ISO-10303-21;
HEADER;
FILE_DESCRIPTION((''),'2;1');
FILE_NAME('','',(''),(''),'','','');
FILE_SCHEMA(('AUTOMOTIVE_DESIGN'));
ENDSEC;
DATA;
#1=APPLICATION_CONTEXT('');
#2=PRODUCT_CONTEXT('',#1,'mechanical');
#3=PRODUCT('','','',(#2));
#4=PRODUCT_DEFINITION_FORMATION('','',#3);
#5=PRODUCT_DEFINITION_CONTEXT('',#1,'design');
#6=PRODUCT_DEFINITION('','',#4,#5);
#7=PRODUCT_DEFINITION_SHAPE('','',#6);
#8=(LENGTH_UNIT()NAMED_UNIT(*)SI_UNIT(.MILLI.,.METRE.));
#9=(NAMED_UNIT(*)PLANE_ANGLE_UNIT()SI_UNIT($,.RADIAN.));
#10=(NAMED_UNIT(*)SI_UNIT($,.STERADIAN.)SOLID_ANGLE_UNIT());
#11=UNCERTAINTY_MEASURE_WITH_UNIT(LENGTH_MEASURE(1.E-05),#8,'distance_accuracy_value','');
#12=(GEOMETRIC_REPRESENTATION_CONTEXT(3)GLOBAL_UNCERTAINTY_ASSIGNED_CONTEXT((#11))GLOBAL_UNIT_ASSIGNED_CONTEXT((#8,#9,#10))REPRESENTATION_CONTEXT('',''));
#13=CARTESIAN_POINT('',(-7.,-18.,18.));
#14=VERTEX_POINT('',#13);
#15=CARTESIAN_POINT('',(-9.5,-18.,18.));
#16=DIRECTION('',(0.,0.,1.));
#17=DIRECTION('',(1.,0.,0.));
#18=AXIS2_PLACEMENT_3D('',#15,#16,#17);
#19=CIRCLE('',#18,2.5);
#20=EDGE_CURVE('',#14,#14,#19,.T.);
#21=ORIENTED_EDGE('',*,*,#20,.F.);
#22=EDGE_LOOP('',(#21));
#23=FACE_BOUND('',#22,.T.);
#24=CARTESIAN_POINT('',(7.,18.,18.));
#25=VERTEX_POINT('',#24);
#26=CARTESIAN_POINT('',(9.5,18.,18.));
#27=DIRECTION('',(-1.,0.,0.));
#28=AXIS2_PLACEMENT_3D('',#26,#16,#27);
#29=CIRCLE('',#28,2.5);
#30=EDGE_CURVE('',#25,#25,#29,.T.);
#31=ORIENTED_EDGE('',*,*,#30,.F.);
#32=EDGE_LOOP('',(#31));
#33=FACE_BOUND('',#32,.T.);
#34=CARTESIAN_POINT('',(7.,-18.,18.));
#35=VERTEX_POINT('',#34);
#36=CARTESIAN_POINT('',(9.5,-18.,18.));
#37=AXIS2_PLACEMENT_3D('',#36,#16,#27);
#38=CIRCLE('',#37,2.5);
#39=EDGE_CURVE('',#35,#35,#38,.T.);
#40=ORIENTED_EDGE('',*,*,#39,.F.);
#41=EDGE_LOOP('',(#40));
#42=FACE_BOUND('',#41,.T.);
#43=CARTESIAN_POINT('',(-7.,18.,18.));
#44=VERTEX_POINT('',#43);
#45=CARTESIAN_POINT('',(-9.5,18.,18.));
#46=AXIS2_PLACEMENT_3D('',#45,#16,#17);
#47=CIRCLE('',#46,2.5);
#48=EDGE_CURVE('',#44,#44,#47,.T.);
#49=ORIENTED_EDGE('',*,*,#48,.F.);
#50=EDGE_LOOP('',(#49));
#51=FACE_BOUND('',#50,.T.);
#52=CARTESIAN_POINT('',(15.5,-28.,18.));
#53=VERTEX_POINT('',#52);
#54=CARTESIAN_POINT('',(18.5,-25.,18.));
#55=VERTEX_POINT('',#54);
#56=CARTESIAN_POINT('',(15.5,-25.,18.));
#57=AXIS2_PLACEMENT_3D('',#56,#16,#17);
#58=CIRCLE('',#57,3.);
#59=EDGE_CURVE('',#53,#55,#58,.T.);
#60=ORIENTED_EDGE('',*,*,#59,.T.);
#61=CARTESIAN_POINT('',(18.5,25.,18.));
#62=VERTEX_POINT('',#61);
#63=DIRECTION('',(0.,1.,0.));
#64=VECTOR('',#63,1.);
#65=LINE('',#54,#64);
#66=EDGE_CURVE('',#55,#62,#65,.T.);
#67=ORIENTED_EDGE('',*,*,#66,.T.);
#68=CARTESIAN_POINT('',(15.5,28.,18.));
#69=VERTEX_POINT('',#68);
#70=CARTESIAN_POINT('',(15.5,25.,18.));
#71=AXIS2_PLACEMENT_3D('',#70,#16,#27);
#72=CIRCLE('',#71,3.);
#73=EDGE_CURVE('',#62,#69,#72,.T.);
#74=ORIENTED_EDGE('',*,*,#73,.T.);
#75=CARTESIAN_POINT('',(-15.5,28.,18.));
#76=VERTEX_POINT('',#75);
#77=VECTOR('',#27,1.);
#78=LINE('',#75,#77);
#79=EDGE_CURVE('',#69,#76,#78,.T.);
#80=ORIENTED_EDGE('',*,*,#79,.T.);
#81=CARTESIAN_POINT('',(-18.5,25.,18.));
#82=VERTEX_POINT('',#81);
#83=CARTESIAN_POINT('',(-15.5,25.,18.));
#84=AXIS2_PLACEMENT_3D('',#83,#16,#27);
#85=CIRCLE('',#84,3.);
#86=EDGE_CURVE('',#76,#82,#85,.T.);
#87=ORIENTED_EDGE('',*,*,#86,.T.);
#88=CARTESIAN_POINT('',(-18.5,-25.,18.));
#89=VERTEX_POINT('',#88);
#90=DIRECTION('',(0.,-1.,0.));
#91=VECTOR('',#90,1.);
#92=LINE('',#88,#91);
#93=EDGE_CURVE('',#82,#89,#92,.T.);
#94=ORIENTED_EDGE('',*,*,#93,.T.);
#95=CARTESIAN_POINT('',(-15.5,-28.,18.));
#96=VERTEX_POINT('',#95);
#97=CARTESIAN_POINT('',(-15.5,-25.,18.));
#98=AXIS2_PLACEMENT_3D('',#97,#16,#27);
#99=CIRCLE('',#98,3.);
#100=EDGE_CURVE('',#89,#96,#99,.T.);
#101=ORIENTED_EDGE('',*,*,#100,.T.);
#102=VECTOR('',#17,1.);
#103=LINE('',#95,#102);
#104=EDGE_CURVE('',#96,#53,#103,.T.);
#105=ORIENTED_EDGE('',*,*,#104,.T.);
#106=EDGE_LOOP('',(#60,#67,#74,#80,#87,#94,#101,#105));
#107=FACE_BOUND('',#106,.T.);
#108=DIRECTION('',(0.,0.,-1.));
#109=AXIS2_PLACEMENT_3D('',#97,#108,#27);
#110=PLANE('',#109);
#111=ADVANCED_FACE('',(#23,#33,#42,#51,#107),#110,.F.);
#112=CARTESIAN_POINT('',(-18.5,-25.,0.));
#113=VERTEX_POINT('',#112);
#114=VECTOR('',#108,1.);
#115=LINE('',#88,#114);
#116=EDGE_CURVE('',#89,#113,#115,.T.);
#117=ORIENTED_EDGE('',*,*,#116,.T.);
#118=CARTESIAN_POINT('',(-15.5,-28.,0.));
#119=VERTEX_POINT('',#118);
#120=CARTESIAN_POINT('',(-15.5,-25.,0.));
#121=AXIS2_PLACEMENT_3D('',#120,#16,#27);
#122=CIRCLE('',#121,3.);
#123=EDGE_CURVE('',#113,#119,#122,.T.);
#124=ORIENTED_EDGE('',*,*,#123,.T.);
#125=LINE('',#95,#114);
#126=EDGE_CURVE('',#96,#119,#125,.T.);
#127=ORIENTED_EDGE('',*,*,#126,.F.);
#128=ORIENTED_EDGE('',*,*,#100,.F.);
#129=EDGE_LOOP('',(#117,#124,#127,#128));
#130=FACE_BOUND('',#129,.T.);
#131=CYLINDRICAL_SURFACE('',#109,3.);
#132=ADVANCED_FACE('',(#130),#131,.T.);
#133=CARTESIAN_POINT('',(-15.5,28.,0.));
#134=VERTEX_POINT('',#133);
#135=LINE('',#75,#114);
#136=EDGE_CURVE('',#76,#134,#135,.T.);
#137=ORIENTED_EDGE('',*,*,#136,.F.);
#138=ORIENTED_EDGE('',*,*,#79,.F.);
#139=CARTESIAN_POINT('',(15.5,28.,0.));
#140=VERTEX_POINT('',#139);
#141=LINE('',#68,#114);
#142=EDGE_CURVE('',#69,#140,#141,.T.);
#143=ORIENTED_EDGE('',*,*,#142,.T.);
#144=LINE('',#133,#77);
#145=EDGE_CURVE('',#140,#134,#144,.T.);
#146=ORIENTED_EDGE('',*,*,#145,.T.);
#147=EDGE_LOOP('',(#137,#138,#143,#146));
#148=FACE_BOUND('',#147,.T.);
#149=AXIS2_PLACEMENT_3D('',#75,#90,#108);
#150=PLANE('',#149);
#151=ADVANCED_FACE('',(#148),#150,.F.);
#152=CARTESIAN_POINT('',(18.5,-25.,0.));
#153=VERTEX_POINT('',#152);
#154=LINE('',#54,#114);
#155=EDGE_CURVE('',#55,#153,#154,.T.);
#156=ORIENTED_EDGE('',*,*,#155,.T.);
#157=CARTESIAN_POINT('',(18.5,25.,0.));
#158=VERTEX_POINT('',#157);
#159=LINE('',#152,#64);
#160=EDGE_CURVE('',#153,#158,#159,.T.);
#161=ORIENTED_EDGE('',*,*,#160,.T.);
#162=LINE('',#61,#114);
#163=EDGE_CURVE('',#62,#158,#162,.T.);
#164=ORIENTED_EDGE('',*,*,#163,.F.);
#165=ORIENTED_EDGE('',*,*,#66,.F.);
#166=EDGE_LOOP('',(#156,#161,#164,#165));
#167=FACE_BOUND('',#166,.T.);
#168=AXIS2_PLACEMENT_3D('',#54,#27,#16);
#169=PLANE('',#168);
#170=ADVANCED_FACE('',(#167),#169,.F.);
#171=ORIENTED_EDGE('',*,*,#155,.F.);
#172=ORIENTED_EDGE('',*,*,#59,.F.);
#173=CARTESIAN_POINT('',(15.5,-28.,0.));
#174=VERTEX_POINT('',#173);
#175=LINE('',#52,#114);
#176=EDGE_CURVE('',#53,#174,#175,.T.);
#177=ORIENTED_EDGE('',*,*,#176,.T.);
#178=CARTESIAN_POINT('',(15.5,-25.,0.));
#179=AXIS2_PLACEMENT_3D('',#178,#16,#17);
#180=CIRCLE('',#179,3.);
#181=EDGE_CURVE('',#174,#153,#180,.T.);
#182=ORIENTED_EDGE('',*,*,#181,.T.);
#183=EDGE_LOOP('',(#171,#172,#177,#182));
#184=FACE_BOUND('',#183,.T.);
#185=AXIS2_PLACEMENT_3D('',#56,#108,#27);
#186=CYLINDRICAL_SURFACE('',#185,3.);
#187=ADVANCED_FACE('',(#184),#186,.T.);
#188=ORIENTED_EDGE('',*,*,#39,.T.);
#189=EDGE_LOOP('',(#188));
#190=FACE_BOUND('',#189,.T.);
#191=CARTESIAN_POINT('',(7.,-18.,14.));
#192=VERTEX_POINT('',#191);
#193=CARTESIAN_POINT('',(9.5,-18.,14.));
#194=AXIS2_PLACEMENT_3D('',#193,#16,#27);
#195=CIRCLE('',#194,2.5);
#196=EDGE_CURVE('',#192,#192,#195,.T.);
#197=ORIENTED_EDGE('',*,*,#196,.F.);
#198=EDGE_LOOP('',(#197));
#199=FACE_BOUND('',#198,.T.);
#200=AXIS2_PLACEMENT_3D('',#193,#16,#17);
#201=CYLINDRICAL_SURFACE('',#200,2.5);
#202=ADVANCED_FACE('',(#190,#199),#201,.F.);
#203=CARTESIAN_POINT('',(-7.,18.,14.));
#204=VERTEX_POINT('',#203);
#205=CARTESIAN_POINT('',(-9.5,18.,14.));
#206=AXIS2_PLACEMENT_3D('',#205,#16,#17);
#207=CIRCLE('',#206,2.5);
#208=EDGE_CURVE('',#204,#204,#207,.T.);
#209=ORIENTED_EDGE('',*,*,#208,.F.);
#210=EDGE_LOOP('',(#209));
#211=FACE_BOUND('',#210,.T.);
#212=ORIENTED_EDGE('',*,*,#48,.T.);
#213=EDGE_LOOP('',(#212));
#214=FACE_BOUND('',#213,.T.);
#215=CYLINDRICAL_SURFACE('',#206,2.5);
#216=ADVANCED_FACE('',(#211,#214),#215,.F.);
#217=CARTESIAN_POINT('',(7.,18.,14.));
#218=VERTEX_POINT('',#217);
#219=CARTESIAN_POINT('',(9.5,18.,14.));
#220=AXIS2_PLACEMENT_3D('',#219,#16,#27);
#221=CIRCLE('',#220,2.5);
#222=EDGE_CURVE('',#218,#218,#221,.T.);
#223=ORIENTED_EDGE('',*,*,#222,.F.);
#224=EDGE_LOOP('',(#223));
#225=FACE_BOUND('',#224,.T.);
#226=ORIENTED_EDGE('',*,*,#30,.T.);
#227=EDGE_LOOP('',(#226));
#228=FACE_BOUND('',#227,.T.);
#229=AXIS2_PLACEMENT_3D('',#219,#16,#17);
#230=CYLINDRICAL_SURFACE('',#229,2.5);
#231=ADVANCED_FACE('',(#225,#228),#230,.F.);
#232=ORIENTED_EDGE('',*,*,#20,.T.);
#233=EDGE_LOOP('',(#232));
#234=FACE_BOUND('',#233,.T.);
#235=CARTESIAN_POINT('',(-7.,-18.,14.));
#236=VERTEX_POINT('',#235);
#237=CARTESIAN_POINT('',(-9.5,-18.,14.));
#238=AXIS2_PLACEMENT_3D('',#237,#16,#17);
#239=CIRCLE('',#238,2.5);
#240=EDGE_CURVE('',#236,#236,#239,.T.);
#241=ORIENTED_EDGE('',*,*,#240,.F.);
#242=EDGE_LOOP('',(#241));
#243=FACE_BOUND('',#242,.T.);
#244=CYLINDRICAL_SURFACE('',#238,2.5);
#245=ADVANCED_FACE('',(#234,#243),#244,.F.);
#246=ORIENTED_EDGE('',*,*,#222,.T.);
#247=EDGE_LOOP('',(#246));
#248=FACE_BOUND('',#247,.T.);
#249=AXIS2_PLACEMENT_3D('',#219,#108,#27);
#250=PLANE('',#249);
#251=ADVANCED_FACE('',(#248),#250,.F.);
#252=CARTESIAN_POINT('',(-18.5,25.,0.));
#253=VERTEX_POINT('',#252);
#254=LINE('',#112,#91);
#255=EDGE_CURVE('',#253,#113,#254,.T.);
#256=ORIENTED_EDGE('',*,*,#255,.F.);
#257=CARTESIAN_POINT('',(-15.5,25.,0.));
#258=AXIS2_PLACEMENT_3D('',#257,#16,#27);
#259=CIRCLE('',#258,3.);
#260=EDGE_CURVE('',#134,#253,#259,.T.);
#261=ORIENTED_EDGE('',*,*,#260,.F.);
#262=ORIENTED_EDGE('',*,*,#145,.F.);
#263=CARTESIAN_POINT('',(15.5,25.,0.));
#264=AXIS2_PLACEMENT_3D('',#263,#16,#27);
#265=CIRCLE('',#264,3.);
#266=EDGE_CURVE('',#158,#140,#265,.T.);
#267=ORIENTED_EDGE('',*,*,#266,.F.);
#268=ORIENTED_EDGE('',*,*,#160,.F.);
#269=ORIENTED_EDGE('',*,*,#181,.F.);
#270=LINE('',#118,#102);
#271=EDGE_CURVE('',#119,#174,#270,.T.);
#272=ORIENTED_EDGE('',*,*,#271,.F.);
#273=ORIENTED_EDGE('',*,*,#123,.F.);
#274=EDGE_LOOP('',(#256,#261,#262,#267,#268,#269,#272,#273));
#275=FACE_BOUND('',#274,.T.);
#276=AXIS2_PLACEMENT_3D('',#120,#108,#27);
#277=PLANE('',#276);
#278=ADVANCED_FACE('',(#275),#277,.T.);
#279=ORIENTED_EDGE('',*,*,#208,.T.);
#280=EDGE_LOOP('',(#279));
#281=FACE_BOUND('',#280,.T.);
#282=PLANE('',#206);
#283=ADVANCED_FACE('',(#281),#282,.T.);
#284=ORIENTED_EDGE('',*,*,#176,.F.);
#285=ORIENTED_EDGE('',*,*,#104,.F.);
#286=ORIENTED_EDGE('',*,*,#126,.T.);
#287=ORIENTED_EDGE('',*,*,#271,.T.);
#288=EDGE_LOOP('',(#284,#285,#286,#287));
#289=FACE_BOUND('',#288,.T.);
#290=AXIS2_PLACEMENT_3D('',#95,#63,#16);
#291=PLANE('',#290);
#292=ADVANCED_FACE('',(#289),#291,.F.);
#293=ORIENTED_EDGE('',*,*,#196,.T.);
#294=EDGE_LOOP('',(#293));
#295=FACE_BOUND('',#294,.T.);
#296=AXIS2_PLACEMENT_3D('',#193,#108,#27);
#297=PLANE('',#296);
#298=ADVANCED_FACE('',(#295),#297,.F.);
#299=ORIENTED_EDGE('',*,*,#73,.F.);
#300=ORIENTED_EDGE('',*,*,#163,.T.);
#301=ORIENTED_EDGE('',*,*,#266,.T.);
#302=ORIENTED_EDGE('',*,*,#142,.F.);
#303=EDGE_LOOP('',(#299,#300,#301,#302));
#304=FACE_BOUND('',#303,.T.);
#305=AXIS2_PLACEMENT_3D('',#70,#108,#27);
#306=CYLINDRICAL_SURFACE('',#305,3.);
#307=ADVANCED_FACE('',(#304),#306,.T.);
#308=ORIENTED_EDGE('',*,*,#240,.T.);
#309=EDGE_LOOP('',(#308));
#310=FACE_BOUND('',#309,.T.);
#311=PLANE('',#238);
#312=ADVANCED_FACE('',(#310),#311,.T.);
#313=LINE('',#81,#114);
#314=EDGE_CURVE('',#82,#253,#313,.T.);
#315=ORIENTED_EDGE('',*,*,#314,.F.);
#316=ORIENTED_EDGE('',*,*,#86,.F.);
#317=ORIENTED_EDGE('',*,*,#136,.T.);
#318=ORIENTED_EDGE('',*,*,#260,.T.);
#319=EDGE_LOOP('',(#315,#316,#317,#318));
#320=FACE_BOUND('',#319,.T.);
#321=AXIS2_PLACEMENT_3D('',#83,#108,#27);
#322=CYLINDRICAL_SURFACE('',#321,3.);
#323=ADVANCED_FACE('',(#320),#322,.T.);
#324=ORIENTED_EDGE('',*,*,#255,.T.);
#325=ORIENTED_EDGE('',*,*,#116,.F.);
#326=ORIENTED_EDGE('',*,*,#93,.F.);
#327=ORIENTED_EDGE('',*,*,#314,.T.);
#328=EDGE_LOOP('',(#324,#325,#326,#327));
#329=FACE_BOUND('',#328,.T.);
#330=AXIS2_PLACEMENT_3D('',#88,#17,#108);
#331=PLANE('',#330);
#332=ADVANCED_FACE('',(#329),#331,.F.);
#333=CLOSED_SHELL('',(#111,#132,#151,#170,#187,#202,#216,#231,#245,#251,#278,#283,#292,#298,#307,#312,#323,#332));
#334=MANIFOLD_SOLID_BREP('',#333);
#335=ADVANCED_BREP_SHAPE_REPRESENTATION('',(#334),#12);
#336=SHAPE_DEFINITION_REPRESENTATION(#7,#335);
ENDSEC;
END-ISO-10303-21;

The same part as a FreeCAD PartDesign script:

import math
import FreeCAD as App
import Part
import Sketcher
Q = App.Units.Quantity

doc = App.newDocument("Part")
params = doc.addObject("Spreadsheet::Sheet", "Params")
for row, (alias, value) in enumerate([
    ("sketch1_radius", "3 mm"),
    ("sketch1_width", "31 mm"),
    ("sketch1_height", "50 mm"),
    ("pad1_length", "18 mm"),
    ("sketch2_diameter", "5 mm"),
    ("pocket1_length", "4 mm"),
], start=1):
    params.set(f"A{row}", alias)
    params.set(f"B{row}", "=" + value)
    params.setAlias(f"B{row}", alias)

body = doc.addObject("PartDesign::Body", "Body")

# Sketch on XY plane
sketch1 = body.newObject("Sketcher::SketchObject", "Sketch")
sketch1.AttachmentSupport = (doc.getObject("XY_Plane"), [""])
sketch1.MapMode = "FlatFace"
sketch1.addGeometry([
    Part.LineSegment(App.Vector(-15.5, -28, 0), App.Vector(15.5, -28, 0)),  # 0
    Part.ArcOfCircle(Part.Circle(App.Vector(15.5, -25, 0), App.Vector(0, 0, 1), 3), math.radians(-90), math.radians(0)),  # 1
    Part.LineSegment(App.Vector(18.5, -25, 0), App.Vector(18.5, 25, 0)),  # 2
    Part.ArcOfCircle(Part.Circle(App.Vector(15.5, 25, 0), App.Vector(0, 0, 1), 3), math.radians(0), math.radians(90)),  # 3
    Part.LineSegment(App.Vector(15.5, 28, 0), App.Vector(-15.5, 28, 0)),  # 4
    Part.ArcOfCircle(Part.Circle(App.Vector(-15.5, 25, 0), App.Vector(0, 0, 1), 3), math.radians(90), math.radians(180)),  # 5
    Part.LineSegment(App.Vector(-18.5, 25, 0), App.Vector(-18.5, -25, 0)),  # 6
    Part.ArcOfCircle(Part.Circle(App.Vector(-15.5, -25, 0), App.Vector(0, 0, 1), 3), math.radians(180), math.radians(270)),  # 7
], False)
sketch1.addConstraint([
    Sketcher.Constraint("Tangent", 0, 2, 1, 1),
    Sketcher.Constraint("Tangent", 1, 2, 2, 1),
    Sketcher.Constraint("Tangent", 2, 2, 3, 1),
    Sketcher.Constraint("Tangent", 3, 2, 4, 1),
    Sketcher.Constraint("Tangent", 4, 2, 5, 1),
    Sketcher.Constraint("Tangent", 5, 2, 6, 1),
    Sketcher.Constraint("Tangent", 6, 2, 7, 1),
    Sketcher.Constraint("Tangent", 7, 2, 0, 1),
    Sketcher.Constraint("Horizontal", 0),
    Sketcher.Constraint("Vertical", 2),
    Sketcher.Constraint("Horizontal", 4),
    Sketcher.Constraint("Vertical", 6),
    Sketcher.Constraint("Equal", 1, 3),
    Sketcher.Constraint("Equal", 3, 5),
    Sketcher.Constraint("Equal", 5, 7),
    Sketcher.Constraint("Symmetric", 1, 3, 5, 3, -1, 1),
    Sketcher.Constraint("Radius", 1, Q("3 mm")),
    Sketcher.Constraint("DistanceX", 0, 1, 0, 2, Q("31 mm")),
    Sketcher.Constraint("DistanceY", 2, 1, 2, 2, Q("50 mm")),
])
sketch1.setExpression("Constraints[16]", "Params.sketch1_radius")
sketch1.setExpression("Constraints[17]", "Params.sketch1_width")
sketch1.setExpression("Constraints[18]", "Params.sketch1_height")
pad1 = body.newObject("PartDesign::Pad", "Pad")
pad1.Profile = sketch1
pad1.setExpression("Length", "Params.pad1_length")

# Sketch on XY plane
sketch2 = body.newObject("Sketcher::SketchObject", "Sketch001")
sketch2.AttachmentSupport = (doc.getObject("XY_Plane"), [""])
sketch2.MapMode = "FlatFace"
sketch2.AttachmentOffset = App.Placement(App.Vector(0, 0, 18), App.Rotation())
sketch2.addGeometry([
    Part.Circle(App.Vector(-9.5, 18, 0), App.Vector(0, 0, 1), 2.5),
    Part.Circle(App.Vector(-9.5, -18, 0), App.Vector(0, 0, 1), 2.5),
    Part.Circle(App.Vector(9.5, -18, 0), App.Vector(0, 0, 1), 2.5),
    Part.Circle(App.Vector(9.5, 18, 0), App.Vector(0, 0, 1), 2.5),
], False)
sketch2.addConstraint([
    Sketcher.Constraint("Equal", 0, 1),
    Sketcher.Constraint("Equal", 1, 2),
    Sketcher.Constraint("Equal", 2, 3),
    Sketcher.Constraint("Symmetric", 0, 3, 2, 3, -1, 1),
    Sketcher.Constraint("Symmetric", 1, 3, 3, 3, -1, 1),
    Sketcher.Constraint("Symmetric", 1, 3, 2, 3, -2),
    Sketcher.Constraint("Diameter", 0, Q("5 mm")),
    Sketcher.Constraint("DistanceY", -1, 1, 0, 3, Q("18 mm")),
    Sketcher.Constraint("DistanceX", 1, 3, 2, 3, Q("19 mm")),
])
sketch2.setExpression("Constraints[6]", "Params.sketch2_diameter")
pocket1 = body.newObject("PartDesign::Pocket", "Pocket")
pocket1.Profile = sketch2
pocket1.setExpression("Length", "Params.pocket1_length")

doc.recompute()
